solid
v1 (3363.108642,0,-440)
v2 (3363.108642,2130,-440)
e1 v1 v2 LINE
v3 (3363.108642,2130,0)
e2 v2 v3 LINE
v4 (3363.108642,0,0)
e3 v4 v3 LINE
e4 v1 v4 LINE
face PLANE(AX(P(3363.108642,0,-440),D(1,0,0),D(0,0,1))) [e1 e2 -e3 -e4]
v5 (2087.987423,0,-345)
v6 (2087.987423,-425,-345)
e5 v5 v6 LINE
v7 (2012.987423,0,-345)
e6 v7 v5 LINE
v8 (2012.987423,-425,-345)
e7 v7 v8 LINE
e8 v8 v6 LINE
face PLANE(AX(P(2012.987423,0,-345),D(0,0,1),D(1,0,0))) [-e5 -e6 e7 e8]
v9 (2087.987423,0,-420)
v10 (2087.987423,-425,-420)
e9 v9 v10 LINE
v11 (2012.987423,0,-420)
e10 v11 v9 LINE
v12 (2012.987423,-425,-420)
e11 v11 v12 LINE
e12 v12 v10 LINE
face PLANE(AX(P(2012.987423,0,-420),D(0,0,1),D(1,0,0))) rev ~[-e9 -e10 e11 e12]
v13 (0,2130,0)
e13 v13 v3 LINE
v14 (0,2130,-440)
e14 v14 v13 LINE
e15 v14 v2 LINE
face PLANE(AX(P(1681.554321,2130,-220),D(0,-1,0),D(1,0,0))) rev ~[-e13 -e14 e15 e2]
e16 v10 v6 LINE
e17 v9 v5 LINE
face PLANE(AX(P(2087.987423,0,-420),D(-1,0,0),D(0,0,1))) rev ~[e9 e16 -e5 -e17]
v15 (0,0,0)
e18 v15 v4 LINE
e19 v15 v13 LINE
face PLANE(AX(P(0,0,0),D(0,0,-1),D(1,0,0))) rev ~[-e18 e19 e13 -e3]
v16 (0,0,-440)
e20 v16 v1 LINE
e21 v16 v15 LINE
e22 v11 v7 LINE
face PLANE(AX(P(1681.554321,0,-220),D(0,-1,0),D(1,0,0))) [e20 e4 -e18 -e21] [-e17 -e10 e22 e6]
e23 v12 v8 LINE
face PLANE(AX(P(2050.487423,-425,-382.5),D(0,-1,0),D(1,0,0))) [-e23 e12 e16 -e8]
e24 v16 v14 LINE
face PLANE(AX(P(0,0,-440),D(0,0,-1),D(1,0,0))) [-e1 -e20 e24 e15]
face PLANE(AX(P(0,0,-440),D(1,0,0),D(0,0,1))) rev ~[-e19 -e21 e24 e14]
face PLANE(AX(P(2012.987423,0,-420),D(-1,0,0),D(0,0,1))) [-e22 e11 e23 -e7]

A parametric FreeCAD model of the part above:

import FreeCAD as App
import Part
import Sketcher

doc = App.newDocument("Part")
body = doc.addObject("PartDesign::Body", "Body")

# Sketch on XZ plane
sketch1 = doc.addObject("Sketcher::SketchObject", "Sketch")
body.addObject(sketch1)
sketch1.AttachmentSupport = (doc.XZ_Plane, [""])
sketch1.MapMode = "FlatFace"
sketch1.addGeometry([
    Part.LineSegment(App.Vector(0, 0, 0), App.Vector(0, -440, 0)),
    Part.LineSegment(App.Vector(0, -440, 0), App.Vector(3363, -440, 0)),
    Part.LineSegment(App.Vector(3363, -440, 0), App.Vector(3363, 0, 0)),
    Part.LineSegment(App.Vector(3363, 0, 0), App.Vector(0, 0, 0)),
], False)
sketch1.addConstraint([
    Sketcher.Constraint("Coincident", 0, 2, 1, 1),
    Sketcher.Constraint("Coincident", 1, 2, 2, 1),
    Sketcher.Constraint("Coincident", 2, 2, 3, 1),
    Sketcher.Constraint("Coincident", 3, 2, 0, 1),
    Sketcher.Constraint("Vertical", 0),
    Sketcher.Constraint("Horizontal", 1),
    Sketcher.Constraint("Vertical", 2),
    Sketcher.Constraint("Horizontal", 3),
    Sketcher.Constraint("Coincident", 3, 2, -1, 1),
    Sketcher.Constraint("DistanceY", 0, 2, 0, 1, 440.0),
    Sketcher.Constraint("DistanceX", 1, 1, 1, 2, 3363.108642),
])
pad1 = doc.addObject("PartDesign::Pad", "Pad")
body.addObject(pad1)
pad1.Profile = sketch1
pad1.Length = 2130
pad1.Reversed = True

# Sketch on XZ plane
sketch2 = doc.addObject("Sketcher::SketchObject", "Sketch001")
body.addObject(sketch2)
sketch2.AttachmentSupport = (doc.XZ_Plane, [""])
sketch2.MapMode = "FlatFace"
sketch2.addGeometry([
    Part.LineSegment(App.Vector(2013, -345, 0), App.Vector(2013, -420, 0)),
    Part.LineSegment(App.Vector(2013, -420, 0), App.Vector(2088, -420, 0)),
    Part.LineSegment(App.Vector(2088, -420, 0), App.Vector(2088, -345, 0)),
    Part.LineSegment(App.Vector(2088, -345, 0), App.Vector(2013, -345, 0)),
], False)
sketch2.addConstraint([
    Sketcher.Constraint("Coincident", 0, 2, 1, 1),
    Sketcher.Constraint("Coincident", 1, 2, 2, 1),
    Sketcher.Constraint("Coincident", 2, 2, 3, 1),
    Sketcher.Constraint("Coincident", 3, 2, 0, 1),
    Sketcher.Constraint("Vertical", 0),
    Sketcher.Constraint("Horizontal", 1),
    Sketcher.Constraint("Vertical", 2),
    Sketcher.Constraint("Horizontal", 3),
    Sketcher.Constraint("Equal", 3, 0),
    Sketcher.Constraint("DistanceX", 1, 1, 1, 2, 75.0),
    Sketcher.Constraint("DistanceY", 0, 2, -1, 1, 420.0),
    Sketcher.Constraint("DistanceX", -1, 1, 0, 2, 2012.987423),
])
pad2 = doc.addObject("PartDesign::Pad", "Pad001")
body.addObject(pad2)
pad2.Profile = sketch2
pad2.Length = 425

doc.recompute()
